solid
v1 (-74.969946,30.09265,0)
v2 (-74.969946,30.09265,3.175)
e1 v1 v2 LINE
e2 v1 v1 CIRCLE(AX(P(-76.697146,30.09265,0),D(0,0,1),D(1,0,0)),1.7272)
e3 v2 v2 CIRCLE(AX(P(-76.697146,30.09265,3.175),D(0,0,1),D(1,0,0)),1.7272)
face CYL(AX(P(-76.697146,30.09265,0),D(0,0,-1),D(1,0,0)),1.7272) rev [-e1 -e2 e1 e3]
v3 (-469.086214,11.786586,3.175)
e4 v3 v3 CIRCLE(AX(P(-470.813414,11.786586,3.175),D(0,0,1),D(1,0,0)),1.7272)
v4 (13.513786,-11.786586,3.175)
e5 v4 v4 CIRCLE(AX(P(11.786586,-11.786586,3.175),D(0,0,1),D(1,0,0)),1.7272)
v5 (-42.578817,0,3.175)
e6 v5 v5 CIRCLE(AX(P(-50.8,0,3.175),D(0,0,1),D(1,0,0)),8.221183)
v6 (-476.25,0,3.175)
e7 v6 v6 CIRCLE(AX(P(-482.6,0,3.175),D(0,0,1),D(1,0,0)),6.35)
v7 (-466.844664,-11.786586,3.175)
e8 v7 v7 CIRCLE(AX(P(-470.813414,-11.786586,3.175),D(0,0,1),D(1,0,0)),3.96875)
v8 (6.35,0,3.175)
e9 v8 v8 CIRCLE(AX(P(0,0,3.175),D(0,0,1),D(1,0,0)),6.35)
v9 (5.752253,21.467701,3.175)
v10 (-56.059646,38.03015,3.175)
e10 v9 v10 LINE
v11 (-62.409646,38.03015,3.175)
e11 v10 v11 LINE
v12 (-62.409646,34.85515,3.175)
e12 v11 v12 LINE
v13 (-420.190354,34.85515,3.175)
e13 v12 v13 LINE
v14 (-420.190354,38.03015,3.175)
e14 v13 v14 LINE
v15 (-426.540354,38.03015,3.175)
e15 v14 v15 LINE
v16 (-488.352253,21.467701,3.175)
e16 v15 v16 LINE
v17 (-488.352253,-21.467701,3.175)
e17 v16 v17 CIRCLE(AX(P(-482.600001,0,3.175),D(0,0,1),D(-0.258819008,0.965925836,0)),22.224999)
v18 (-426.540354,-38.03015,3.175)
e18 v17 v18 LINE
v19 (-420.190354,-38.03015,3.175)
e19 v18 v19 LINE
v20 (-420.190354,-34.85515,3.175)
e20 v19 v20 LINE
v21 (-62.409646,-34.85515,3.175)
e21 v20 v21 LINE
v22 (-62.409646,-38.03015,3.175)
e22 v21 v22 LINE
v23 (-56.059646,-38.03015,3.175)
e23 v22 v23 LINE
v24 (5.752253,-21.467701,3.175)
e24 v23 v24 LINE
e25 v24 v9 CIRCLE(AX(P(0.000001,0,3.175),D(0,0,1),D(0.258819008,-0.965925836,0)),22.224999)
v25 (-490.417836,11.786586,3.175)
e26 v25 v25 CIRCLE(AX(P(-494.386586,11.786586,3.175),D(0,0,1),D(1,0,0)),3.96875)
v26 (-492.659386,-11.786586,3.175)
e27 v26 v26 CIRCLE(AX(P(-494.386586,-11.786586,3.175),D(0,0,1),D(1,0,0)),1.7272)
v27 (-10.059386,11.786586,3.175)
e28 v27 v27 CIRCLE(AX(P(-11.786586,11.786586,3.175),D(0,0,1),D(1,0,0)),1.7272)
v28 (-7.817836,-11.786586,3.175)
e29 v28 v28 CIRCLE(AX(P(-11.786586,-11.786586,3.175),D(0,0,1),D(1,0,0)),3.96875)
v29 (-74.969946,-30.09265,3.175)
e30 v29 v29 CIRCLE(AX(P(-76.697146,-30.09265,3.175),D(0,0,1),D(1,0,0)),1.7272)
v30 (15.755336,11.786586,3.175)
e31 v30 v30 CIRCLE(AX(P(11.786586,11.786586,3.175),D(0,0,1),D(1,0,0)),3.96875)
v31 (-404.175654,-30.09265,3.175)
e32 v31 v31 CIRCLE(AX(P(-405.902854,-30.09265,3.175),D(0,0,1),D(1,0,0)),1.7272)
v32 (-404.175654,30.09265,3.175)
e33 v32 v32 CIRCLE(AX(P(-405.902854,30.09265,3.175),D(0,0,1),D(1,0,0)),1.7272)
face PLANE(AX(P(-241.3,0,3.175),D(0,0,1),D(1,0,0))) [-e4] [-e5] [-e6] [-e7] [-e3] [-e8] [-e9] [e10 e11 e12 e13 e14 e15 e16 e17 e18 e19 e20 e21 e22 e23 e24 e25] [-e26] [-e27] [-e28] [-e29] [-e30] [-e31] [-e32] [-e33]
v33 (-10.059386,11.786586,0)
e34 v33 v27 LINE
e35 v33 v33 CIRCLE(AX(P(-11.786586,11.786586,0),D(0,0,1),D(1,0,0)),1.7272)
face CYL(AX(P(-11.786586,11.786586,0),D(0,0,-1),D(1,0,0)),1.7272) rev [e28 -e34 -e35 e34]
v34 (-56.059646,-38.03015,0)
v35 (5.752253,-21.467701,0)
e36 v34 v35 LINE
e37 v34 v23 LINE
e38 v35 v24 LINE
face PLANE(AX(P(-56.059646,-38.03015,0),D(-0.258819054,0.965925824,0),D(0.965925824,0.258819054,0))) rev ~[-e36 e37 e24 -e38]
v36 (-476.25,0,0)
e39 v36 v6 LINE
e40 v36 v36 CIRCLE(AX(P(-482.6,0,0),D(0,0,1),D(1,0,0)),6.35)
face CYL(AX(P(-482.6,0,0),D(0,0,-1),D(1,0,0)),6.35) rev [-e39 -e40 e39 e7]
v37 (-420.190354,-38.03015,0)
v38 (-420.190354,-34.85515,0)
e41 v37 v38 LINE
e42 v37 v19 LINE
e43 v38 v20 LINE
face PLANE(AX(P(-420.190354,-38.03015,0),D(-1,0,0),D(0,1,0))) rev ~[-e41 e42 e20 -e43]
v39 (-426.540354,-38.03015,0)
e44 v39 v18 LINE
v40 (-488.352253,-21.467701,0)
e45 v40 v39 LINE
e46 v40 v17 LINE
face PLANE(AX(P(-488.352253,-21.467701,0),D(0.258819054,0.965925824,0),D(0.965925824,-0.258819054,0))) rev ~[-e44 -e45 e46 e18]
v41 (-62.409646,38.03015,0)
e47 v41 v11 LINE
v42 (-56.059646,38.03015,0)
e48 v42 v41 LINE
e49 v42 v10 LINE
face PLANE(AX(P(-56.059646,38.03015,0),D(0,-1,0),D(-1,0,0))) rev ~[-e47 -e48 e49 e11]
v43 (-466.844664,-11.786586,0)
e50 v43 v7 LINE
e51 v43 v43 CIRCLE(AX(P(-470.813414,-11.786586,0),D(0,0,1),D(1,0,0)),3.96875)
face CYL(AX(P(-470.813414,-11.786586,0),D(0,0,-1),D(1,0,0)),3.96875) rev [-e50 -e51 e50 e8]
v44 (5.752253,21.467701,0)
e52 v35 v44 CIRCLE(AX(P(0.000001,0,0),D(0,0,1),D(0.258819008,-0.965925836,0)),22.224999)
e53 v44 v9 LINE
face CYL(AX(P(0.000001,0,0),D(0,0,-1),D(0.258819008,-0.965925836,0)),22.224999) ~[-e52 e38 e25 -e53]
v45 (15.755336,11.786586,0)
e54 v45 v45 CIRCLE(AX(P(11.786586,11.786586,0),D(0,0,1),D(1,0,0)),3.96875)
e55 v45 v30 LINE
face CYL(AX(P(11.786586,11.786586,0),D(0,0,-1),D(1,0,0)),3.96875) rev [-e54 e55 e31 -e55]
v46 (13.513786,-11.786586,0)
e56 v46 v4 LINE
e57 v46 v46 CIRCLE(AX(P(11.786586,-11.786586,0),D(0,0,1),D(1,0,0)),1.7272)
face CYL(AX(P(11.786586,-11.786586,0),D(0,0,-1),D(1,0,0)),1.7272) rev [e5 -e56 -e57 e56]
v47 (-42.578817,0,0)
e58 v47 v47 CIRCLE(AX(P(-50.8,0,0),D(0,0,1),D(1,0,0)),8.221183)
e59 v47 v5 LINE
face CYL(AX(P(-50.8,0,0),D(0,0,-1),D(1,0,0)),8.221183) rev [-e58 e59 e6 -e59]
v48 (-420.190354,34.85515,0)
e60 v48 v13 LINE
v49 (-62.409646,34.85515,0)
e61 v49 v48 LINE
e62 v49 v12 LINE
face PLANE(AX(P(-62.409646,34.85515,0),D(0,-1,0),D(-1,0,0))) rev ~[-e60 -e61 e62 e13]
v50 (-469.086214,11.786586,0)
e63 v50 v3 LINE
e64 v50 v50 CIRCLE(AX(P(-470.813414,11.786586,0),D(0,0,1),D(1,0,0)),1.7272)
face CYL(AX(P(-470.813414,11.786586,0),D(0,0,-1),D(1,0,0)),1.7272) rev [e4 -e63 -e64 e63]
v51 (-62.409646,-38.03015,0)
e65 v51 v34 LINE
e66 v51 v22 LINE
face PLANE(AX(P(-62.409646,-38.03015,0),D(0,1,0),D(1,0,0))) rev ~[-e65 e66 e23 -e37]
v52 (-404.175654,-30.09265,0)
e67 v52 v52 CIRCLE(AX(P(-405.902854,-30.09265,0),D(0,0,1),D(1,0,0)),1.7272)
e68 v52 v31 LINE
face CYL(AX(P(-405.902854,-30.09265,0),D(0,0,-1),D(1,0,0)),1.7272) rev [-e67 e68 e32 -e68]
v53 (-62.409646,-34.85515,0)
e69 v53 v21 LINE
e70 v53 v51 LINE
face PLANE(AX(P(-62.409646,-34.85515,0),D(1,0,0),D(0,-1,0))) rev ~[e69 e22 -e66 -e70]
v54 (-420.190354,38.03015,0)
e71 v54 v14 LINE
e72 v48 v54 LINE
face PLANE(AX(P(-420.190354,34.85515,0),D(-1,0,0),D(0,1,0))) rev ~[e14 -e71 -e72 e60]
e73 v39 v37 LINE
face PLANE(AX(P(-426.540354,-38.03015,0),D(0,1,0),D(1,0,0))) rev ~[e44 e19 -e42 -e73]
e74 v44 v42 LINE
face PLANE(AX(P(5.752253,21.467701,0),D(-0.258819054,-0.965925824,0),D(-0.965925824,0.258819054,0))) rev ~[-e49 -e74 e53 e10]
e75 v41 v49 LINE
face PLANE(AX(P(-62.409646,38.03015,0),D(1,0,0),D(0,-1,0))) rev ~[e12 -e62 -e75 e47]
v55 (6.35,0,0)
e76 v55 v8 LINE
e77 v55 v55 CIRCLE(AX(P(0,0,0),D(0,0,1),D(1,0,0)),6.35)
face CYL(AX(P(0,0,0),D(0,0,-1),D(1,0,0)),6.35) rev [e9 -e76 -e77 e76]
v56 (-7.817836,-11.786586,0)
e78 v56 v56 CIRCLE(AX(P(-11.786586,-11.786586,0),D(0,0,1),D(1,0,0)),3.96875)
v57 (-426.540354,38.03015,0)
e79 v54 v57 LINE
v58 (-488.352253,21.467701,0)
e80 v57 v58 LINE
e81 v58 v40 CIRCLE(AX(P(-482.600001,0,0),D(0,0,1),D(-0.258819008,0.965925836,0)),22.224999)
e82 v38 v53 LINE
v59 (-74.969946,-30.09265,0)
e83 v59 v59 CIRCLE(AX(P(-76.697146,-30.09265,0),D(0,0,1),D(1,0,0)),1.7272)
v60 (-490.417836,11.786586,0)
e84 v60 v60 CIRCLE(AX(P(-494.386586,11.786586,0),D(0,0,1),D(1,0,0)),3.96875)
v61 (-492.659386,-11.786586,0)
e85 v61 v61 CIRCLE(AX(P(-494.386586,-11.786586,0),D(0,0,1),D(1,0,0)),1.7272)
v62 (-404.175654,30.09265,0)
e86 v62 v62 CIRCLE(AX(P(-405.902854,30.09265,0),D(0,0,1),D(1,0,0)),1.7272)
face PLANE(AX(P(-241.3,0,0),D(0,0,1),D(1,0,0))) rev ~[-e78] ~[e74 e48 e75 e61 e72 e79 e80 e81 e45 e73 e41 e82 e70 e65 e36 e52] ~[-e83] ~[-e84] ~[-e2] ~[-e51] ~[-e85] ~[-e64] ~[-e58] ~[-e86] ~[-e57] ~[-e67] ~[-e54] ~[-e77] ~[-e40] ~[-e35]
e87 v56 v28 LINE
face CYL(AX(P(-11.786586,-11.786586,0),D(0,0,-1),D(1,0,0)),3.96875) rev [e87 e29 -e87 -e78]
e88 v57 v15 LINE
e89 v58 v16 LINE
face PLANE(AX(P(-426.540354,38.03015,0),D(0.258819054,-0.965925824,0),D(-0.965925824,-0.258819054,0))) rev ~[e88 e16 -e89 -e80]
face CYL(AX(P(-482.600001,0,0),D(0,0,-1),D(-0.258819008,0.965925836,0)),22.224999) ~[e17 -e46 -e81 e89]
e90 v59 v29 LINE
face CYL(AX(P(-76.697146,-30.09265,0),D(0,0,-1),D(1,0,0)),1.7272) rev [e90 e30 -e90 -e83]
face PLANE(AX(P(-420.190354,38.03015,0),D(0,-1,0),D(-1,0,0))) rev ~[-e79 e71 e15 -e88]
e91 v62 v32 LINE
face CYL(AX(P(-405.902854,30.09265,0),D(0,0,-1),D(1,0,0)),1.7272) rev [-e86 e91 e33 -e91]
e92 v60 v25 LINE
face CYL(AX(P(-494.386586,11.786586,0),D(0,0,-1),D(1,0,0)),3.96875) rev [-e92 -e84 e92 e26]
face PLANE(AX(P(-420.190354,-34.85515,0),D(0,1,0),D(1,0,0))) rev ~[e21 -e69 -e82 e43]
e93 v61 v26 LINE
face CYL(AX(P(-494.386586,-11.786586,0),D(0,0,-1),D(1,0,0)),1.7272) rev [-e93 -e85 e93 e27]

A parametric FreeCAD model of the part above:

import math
import FreeCAD as App
import Part
import Sketcher
Q = App.Units.Quantity

doc = App.newDocument("Part")
body = doc.addObject("PartDesign::Body", "Body")

# Sketch on XY plane
sketch1 = doc.addObject("Sketcher::SketchObject", "Sketch")
body.addObject(sketch1)
sketch1.AttachmentSupport = (doc.XY_Plane, [""])
sketch1.MapMode = "FlatFace"
sketch1.addGeometry([
    Part.LineSegment(App.Vector(-426.540354, 38.03015, 0), App.Vector(-488.352253, 21.467701, 0)),  # 0
    Part.ArcOfCircle(Part.Circle(App.Vector(-482.600001, 0, 0), App.Vector(0, 0, 1), 22.224999), math.radians(104.999998), math.radians(255.000002)),  # 1
    Part.LineSegment(App.Vector(-488.352253, -21.467701, 0), App.Vector(-426.540354, -38.03015, 0)),  # 2
    Part.LineSegment(App.Vector(-426.540354, -38.03015, 0), App.Vector(-420.190354, -38.03015, 0)),  # 3
    Part.LineSegment(App.Vector(-420.190354, -38.03015, 0), App.Vector(-420.190354, -34.85515, 0)),  # 4
    Part.LineSegment(App.Vector(-420.190354, -34.85515, 0), App.Vector(-62.409646, -34.85515, 0)),  # 5
    Part.LineSegment(App.Vector(-62.409646, -34.85515, 0), App.Vector(-62.409646, -38.03015, 0)),  # 6
    Part.LineSegment(App.Vector(-62.409646, -38.03015, 0), App.Vector(-56.059646, -38.03015, 0)),  # 7
    Part.LineSegment(App.Vector(-56.059646, -38.03015, 0), App.Vector(5.752253, -21.467701, 0)),  # 8
    Part.ArcOfCircle(Part.Circle(App.Vector(0.000001, 0, 0), App.Vector(0, 0, 1), 22.224999), math.radians(-75.000002), math.radians(75.000002)),  # 9
    Part.LineSegment(App.Vector(5.752253, 21.467701, 0), App.Vector(-56.059646, 38.03015, 0)),  # 10
    Part.LineSegment(App.Vector(-56.059646, 38.03015, 0), App.Vector(-62.409646, 38.03015, 0)),  # 11
    Part.LineSegment(App.Vector(-62.409646, 38.03015, 0), App.Vector(-62.409646, 34.85515, 0)),  # 12
    Part.LineSegment(App.Vector(-62.409646, 34.85515, 0), App.Vector(-420.190354, 34.85515, 0)),  # 13
    Part.LineSegment(App.Vector(-420.190354, 34.85515, 0), App.Vector(-420.190354, 38.03015, 0)),  # 14
    Part.LineSegment(App.Vector(-420.190354, 38.03015, 0), App.Vector(-426.540354, 38.03015, 0)),  # 15
    Part.Circle(App.Vector(-405.902854, -30.09265, 0), App.Vector(0, 0, 1), 1.7272),  # 16
    Part.Circle(App.Vector(-494.386586, -11.786586, 0), App.Vector(0, 0, 1), 1.7272),  # 17
    Part.Circle(App.Vector(-470.813414, -11.786586, 0), App.Vector(0, 0, 1), 3.96875),  # 18
    Part.Circle(App.Vector(-482.6, 0, 0), App.Vector(0, 0, 1), 6.35),  # 19
    Part.Circle(App.Vector(-76.697146, -30.09265, 0), App.Vector(0, 0, 1), 1.7272),  # 20
    Part.Circle(App.Vector(-11.786586, -11.786586, 0), App.Vector(0, 0, 1), 3.96875),  # 21
    Part.Circle(App.Vector(11.786586, -11.786586, 0), App.Vector(0, 0, 1), 1.7272),  # 22
    Part.Circle(App.Vector(-50.8, 0, 0), App.Vector(0, 0, 1), 8.221183),  # 23
    Part.Circle(App.Vector(0, 0, 0), App.Vector(0, 0, 1), 6.35),  # 24
    Part.Circle(App.Vector(-494.386586, 11.786586, 0), App.Vector(0, 0, 1), 3.96875),  # 25
    Part.Circle(App.Vector(-470.813414, 11.786586, 0), App.Vector(0, 0, 1), 1.7272),  # 26
    Part.Circle(App.Vector(-405.902854, 30.09265, 0), App.Vector(0, 0, 1), 1.7272),  # 27
    Part.Circle(App.Vector(-11.786586, 11.786586, 0), App.Vector(0, 0, 1), 1.7272),  # 28
    Part.Circle(App.Vector(11.786586, 11.786586, 0), App.Vector(0, 0, 1), 3.96875),  # 29
    Part.Circle(App.Vector(-76.697146, 30.09265, 0), App.Vector(0, 0, 1), 1.7272),  # 30
], False)
sketch1.addConstraint([
    Sketcher.Constraint("Tangent", 0, 2, 1, 1),
    Sketcher.Constraint("Tangent", 1, 2, 2, 1),
    Sketcher.Constraint("Coincident", 2, 2, 3, 1),
    Sketcher.Constraint("Coincident", 3, 2, 4, 1),
    Sketcher.Constraint("Coincident", 4, 2, 5, 1),
    Sketcher.Constraint("Coincident", 5, 2, 6, 1),
    Sketcher.Constraint("Coincident", 6, 2, 7, 1),
    Sketcher.Constraint("Coincident", 7, 2, 8, 1),
    Sketcher.Constraint("Tangent", 8, 2, 9, 1),
    Sketcher.Constraint("Tangent", 9, 2, 10, 1),
    Sketcher.Constraint("Coincident", 10, 2, 11, 1),
    Sketcher.Constraint("Coincident", 11, 2, 12, 1),
    Sketcher.Constraint("Coincident", 12, 2, 13, 1),
    Sketcher.Constraint("Coincident", 13, 2, 14, 1),
    Sketcher.Constraint("Coincident", 14, 2, 15, 1),
    Sketcher.Constraint("Coincident", 15, 2, 0, 1),
    Sketcher.Constraint("Horizontal", 3),
    Sketcher.Constraint("Vertical", 4),
    Sketcher.Constraint("Horizontal", 5),
    Sketcher.Constraint("Vertical", 6),
    Sketcher.Constraint("Horizontal", 7),
    Sketcher.Constraint("Horizontal", 11),
    Sketcher.Constraint("Vertical", 12),
    Sketcher.Constraint("Horizontal", 13),
    Sketcher.Constraint("Vertical", 14),
    Sketcher.Constraint("Horizontal", 15),
    Sketcher.Constraint("Coincident", 9, 3, -1, 1),
    Sketcher.Constraint("Coincident", 24, 3, -1, 1),
    Sketcher.Constraint("Coincident", 19, 3, 1, 3),
    Sketcher.Constraint("Equal", 1, 9),
    Sketcher.Constraint("Equal", 16, 17),
    Sketcher.Constraint("Equal", 17, 20),
    Sketcher.Constraint("Equal", 18, 21),
    Sketcher.Constraint("Equal", 20, 22),
    Sketcher.Constraint("Equal", 19, 24),
    Sketcher.Constraint("Equal", 21, 25),
    Sketcher.Constraint("Equal", 22, 26),
    Sketcher.Constraint("Equal", 26, 27),
    Sketcher.Constraint("Equal", 27, 28),
    Sketcher.Constraint("Equal", 25, 29),
    Sketcher.Constraint("Equal", 28, 30),
    Sketcher.Constraint("Symmetric", 22, 3, 28, 3, -1, 1),
    Sketcher.Constraint("Symmetric", 21, 3, 29, 3, -1, 1),
    Sketcher.Constraint("Symmetric", 21, 3, 22, 3, -2),
    Sketcher.Constraint("Symmetric", 17, 3, 25, 3, -1),
    Sketcher.Constraint("Symmetric", 18, 3, 26, 3, -1),
    Sketcher.Constraint("Symmetric", 16, 3, 27, 3, -1),
    Sketcher.Constraint("Symmetric", 20, 3, 30, 3, -1),
    Sketcher.Constraint("Symmetric", 0, 2, 1, 2, -1),
    Sketcher.Constraint("Symmetric", 7, 2, 10, 2, -1),
    Sketcher.Constraint("Symmetric", 5, 2, 12, 2, -1),
    Sketcher.Constraint("Symmetric", 3, 2, 14, 2, -1),
    Sketcher.Constraint("PointOnObject", 23, 3, -1),
    Sketcher.Constraint("Parallel", 0, 8),
    Sketcher.Constraint("Horizontal", 17, 3, 18, 3),
    Sketcher.Constraint("Horizontal", 16, 3, 20, 3),
    Sketcher.Constraint("Horizontal", 18, 3, 21, 3),
    Sketcher.Constraint("Horizontal", 3, 2, 6, 2),
    Sketcher.Constraint("Equal", 3, 7),
    Sketcher.Constraint("Diameter", 19, Q("0.5 in")),
    Sketcher.Constraint("Diameter", 16, Q("0.136 in")),
    Sketcher.Constraint("Diameter", 18, Q("0.3125 in")),
    Sketcher.Constraint("DistanceX", 1, 3, -1, 1, Q("19 in")),
    Sketcher.Constraint("DistanceX", 23, 3, -1, 1, Q("2 in")),
    Sketcher.Constraint("Angle", 0, Q("-164.999999 deg")),
    Sketcher.Constraint("Radius", 1, Q("0.875 in")),
    Sketcher.Constraint("DistanceX", 18, 3, 22, 3, Q("19 in")),
    Sketcher.Constraint("DistanceX", 3, 1, 3, 2, Q("0.25 in")),
    Sketcher.Constraint("DistanceY", 4, 1, 4, 2, Q("0.125 in")),
    Sketcher.Constraint("DistanceX", 2, 2, 16, 3, Q("0.8125 in")),
    Sketcher.Constraint("DistanceY", 2, 2, 16, 3, Q("0.3125 in")),
    Sketcher.Constraint("DistanceY", 3, 2, 27, 3, Q("2.682 in")),
    Sketcher.Constraint("DistanceX", 20, 3, 5, 2, Q("0.5625 in")),
    Sketcher.Constraint("Diameter", 23, 16.442366),
    Sketcher.Constraint("DistanceX", 17, 3, 18, 3, 23.573172),
    Sketcher.Constraint("DistanceX", 18, 3, 16, 3, 64.91056),
    Sketcher.Constraint("DistanceY", 17, 3, 25, 3, 23.573172),
])
pad1 = doc.addObject("PartDesign::Pad", "Pad")
body.addObject(pad1)
pad1.Profile = sketch1
pad1.Length = Q("0.125 in")

doc.recompute()
